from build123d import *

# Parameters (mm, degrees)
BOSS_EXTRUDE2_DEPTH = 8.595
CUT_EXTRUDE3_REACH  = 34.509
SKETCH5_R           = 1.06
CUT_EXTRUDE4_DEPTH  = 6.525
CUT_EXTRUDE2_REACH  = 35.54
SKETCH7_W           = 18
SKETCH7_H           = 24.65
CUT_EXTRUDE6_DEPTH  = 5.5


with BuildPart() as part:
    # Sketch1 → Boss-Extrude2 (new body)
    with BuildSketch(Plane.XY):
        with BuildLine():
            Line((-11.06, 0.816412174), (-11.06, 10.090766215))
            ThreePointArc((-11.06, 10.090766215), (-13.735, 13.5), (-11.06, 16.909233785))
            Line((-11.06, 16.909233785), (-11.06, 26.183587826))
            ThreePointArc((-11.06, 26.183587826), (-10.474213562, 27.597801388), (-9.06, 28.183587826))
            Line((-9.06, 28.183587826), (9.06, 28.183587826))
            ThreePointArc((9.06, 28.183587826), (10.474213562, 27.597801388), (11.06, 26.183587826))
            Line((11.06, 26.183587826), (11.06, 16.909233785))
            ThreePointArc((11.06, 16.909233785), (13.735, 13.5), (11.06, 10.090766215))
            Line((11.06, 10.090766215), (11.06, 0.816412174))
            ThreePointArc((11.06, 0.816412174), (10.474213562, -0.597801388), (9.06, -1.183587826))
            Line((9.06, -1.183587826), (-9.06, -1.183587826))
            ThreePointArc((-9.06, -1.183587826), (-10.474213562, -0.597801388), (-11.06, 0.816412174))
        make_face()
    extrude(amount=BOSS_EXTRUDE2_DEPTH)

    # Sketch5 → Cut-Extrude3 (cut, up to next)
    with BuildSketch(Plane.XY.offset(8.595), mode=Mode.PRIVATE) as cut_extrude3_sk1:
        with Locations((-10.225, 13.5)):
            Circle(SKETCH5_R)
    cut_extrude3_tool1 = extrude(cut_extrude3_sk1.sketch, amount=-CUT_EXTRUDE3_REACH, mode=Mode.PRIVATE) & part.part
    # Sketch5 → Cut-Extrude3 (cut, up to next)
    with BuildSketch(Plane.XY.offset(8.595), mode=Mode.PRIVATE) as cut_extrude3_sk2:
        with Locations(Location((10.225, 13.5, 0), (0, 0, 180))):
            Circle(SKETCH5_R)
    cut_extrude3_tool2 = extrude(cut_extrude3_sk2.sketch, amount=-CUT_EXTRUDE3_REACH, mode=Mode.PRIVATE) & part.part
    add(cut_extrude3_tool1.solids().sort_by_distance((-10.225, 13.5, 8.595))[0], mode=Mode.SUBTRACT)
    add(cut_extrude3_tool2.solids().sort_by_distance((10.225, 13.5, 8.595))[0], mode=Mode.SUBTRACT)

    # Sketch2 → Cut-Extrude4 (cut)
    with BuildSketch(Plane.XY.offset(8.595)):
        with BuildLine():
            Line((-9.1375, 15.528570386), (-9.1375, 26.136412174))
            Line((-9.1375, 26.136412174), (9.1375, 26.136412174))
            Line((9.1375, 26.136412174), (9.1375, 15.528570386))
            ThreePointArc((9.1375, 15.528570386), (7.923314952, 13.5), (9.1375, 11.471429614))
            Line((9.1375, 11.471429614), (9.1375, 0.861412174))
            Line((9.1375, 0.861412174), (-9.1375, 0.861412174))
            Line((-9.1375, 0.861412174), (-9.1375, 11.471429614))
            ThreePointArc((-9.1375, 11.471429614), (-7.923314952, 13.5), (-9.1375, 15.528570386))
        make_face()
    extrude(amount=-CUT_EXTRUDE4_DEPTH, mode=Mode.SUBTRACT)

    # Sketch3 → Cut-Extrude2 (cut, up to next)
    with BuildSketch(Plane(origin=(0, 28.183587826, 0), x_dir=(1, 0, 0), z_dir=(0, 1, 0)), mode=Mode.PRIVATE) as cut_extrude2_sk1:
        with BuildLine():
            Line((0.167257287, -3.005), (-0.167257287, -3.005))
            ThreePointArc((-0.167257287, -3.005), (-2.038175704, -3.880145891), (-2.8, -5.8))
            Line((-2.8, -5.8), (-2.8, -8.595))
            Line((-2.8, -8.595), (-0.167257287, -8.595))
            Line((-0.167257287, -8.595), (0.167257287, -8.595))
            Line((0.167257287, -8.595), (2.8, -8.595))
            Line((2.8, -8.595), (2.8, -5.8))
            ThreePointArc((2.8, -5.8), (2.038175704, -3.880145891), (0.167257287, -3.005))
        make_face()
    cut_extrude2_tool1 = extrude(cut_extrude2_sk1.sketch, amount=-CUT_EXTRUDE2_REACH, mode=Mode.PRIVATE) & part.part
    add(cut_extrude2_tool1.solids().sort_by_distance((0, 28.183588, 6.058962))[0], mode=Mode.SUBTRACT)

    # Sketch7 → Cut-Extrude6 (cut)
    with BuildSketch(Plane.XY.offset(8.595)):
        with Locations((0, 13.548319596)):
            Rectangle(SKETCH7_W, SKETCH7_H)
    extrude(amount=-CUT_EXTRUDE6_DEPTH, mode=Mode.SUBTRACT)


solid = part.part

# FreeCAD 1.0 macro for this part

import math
import FreeCAD as App
import Part
import Sketcher

V = App.Vector

doc = App.newDocument("Part")
body = doc.addObject("PartDesign::Body", "Body")

sketch1 = body.newObject("Sketcher::SketchObject", "Sketch")
sketch1.AttachmentSupport = (doc.getObject("XY_Plane"), [""])
sketch1.MapMode = "FlatFace"
sketch1.addGeometry([
    Part.LineSegment(V(-11.1, 10.1, 0), V(-11.1, 0.8, 0)),
    Part.ArcOfCircle(Part.Circle(V(-9.1, 0.8, 0), V(0, 0, 1), 2), math.radians(-180), math.radians(-90)),
    Part.LineSegment(V(-9.1, -1.2, 0), V(9.1, -1.2, 0)),
    Part.ArcOfCircle(Part.Circle(V(9.1, 0.8, 0), V(0, 0, 1), 2), math.radians(-90), math.radians(0)),
    Part.LineSegment(V(11.1, 0.8, 0), V(11.1, 10.1, 0)),
    Part.ArcOfCircle(Part.Circle(V(10.2, 13.5, 0), V(0, 0, 1), 3.5), math.radians(-76), math.radians(76)),
    Part.LineSegment(V(11.1, 16.9, 0), V(11.1, 26.2, 0)),
    Part.ArcOfCircle(Part.Circle(V(9.1, 26.2, 0), V(0, 0, 1), 2), math.radians(0), math.radians(90)),
    Part.LineSegment(V(9.1, 28.2, 0), V(-9.1, 28.2, 0)),
    Part.ArcOfCircle(Part.Circle(V(-9.1, 26.2, 0), V(0, 0, 1), 2), math.radians(90), math.radians(180)),
    Part.LineSegment(V(-11.1, 26.2, 0), V(-11.1, 16.9, 0)),
    Part.ArcOfCircle(Part.Circle(V(-10.2, 13.5, 0), V(0, 0, 1), 3.5), math.radians(104), math.radians(256)),
], False)
sketch1.addConstraint([
    Sketcher.Constraint("Tangent", 0, 2, 1, 1),
    Sketcher.Constraint("Tangent", 1, 2, 2, 1),
    Sketcher.Constraint("Tangent", 2, 2, 3, 1),
    Sketcher.Constraint("Tangent", 3, 2, 4, 1),
    Sketcher.Constraint("Coincident", 4, 2, 5, 1),
    Sketcher.Constraint("Coincident", 5, 2, 6, 1),
    Sketcher.Constraint("Tangent", 6, 2, 7, 1),
    Sketcher.Constraint("Tangent", 7, 2, 8, 1),
    Sketcher.Constraint("Tangent", 8, 2, 9, 1),
    Sketcher.Constraint("Tangent", 9, 2, 10, 1),
    Sketcher.Constraint("Coincident", 10, 2, 11, 1),
    Sketcher.Constraint("Coincident", 11, 2, 0, 1),
    Sketcher.Constraint("Vertical", 0),
    Sketcher.Constraint("Horizontal", 2),
    Sketcher.Constraint("Vertical", 4),
    Sketcher.Constraint("Vertical", 6),
    Sketcher.Constraint("Horizontal", 8),
    Sketcher.Constraint("Vertical", 10),
    Sketcher.Constraint("Equal", 1, 3),
    Sketcher.Constraint("Equal", 3, 7),
    Sketcher.Constraint("Equal", 7, 9),
    Sketcher.Constraint("Equal", 5, 11),
    Sketcher.Constraint("Symmetric", 5, 3, 11, 3, -2),
    Sketcher.Constraint("Horizontal", 5, 2, 10, 2),
    Sketcher.Constraint("Horizontal", 4, 2, 11, 2),
    Sketcher.Constraint("Vertical", 3, 3, 7, 3),
    Sketcher.Constraint("Equal", 4, 6),
    Sketcher.Constraint("Radius", 1, 2.0),
    Sketcher.Constraint("Radius", 5, 3.51),
    Sketcher.Constraint("DistanceX", 2, 1, 2, 2, 18.12),
    Sketcher.Constraint("DistanceY", -1, 1, 5, 3, 13.5),
    Sketcher.Constraint("DistanceX", 11, 3, 5, 3, 20.45),
    Sketcher.Constraint("DistanceY", 0, 2, 0, 1, 9.274354),
])
pad1 = body.newObject("PartDesign::Pad", "Pad")
pad1.Profile = sketch1
pad1.Length = 8.595

sketch2 = body.newObject("Sketcher::SketchObject", "Sketch001")
sketch2.AttachmentSupport = (doc.getObject("XY_Plane"), [""])
sketch2.MapMode = "FlatFace"
sketch2.AttachmentOffset = App.Placement(V(0, 0, 8.595), App.Rotation())
sketch2.addGeometry(Part.Circle(V(-10.2, 13.5, 0), V(0, 0, 1), 1.1), False)
sketch2.addConstraint([
    Sketcher.Constraint("Diameter", 0, 2.12),
    Sketcher.Constraint("DistanceY", -1, 1, 0, 3, 13.5),
    Sketcher.Constraint("DistanceX", 0, 3, -1, 1, 10.225),
])
pocket1 = body.newObject("PartDesign::Pocket", "Pocket")
pocket1.Profile = sketch2
pocket1.Type = "UpToFirst"

sketch3 = body.newObject("Sketcher::SketchObject", "Sketch002")
sketch3.AttachmentSupport = (doc.getObject("XY_Plane"), [""])
sketch3.MapMode = "FlatFace"
sketch3.AttachmentOffset = App.Placement(V(0, 0, 8.595), App.Rotation())
sketch3.addGeometry(Part.Circle(V(10.2, 13.5, 0), V(0, 0, 1), 1.1), False)
sketch3.addConstraint([
    Sketcher.Constraint("Diameter", 0, 2.12),
    Sketcher.Constraint("DistanceY", -1, 1, 0, 3, 13.5),
    Sketcher.Constraint("DistanceX", -1, 1, 0, 3, 10.225),
])
pocket2 = body.newObject("PartDesign::Pocket", "Pocket001")
pocket2.Profile = sketch3
pocket2.Type = "UpToFirst"

sketch4 = body.newObject("Sketcher::SketchObject", "Sketch003")
sketch4.AttachmentSupport = (doc.getObject("XY_Plane"), [""])
sketch4.MapMode = "FlatFace"
sketch4.AttachmentOffset = App.Placement(V(0, 0, 8.595), App.Rotation())
sketch4.addGeometry([
    Part.LineSegment(V(-9.1, 26.1, 0), V(-9.1, 15.5, 0)),
    Part.ArcOfCircle(Part.Circle(V(-10.2, 13.5, 0), V(0, 0, 1), 2.3), math.radians(-62), math.radians(62)),
    Part.LineSegment(V(-9.1, 11.5, 0), V(-9.1, 0.9, 0)),
    Part.LineSegment(V(-9.1, 0.9, 0), V(9.1, 0.9, 0)),
    Part.LineSegment(V(9.1, 0.9, 0), V(9.1, 11.5, 0)),
    Part.ArcOfCircle(Part.Circle(V(10.2, 13.5, 0), V(0, 0, 1), 2.3), math.radians(118), math.radians(242)),
    Part.LineSegment(V(9.1, 15.5, 0), V(9.1, 26.1, 0)),
    Part.LineSegment(V(9.1, 26.1, 0), V(-9.1, 26.1, 0)),
], False)
sketch4.addConstraint([
    Sketcher.Constraint("Coincident", 0, 2, 1, 2),
    Sketcher.Constraint("Coincident", 1, 1, 2, 1),
    Sketcher.Constraint("Coincident", 2, 2, 3, 1),
    Sketcher.Constraint("Coincident", 3, 2, 4, 1),
    Sketcher.Constraint("Coincident", 4, 2, 5, 2),
    Sketcher.Constraint("Coincident", 5, 1, 6, 1),
    Sketcher.Constraint("Coincident", 6, 2, 7, 1),
    Sketcher.Constraint("Coincident", 7, 2, 0, 1),
    Sketcher.Constraint("Vertical", 0),
    Sketcher.Constraint("Vertical", 2),
    Sketcher.Constraint("Horizontal", 3),
    Sketcher.Constraint("Vertical", 4),
    Sketcher.Constraint("Vertical", 6),
    Sketcher.Constraint("Horizontal", 7),
    Sketcher.Constraint("Equal", 1, 5),
    Sketcher.Constraint("Symmetric", 1, 3, 5, 3, -2),
    Sketcher.Constraint("Horizontal", 1, 1, 4, 2),
    Sketcher.Constraint("Horizontal", 0, 2, 5, 1),
    Sketcher.Constraint("Vertical", 0, 2, 1, 1),
    Sketcher.Constraint("DistanceY", -1, 1, 1, 3, 13.5),
    Sketcher.Constraint("DistanceX", 3, 1, 3, 2, 18.275),
    Sketcher.Constraint("DistanceX", 1, 3, 5, 3, 20.45),
    Sketcher.Constraint("Radius", 1, 2.301685),
    Sketcher.Constraint("DistanceY", 0, 2, 0, 1, 10.607842),
    Sketcher.Constraint("DistanceY", 2, 2, 2, 1, 10.610017),
])
pocket3 = body.newObject("PartDesign::Pocket", "Pocket002")
pocket3.Profile = sketch4
pocket3.Length = 6.525

sketch5 = body.newObject("Sketcher::SketchObject", "Sketch004")
sketch5.AttachmentSupport = (doc.getObject("XZ_Plane"), [""])
sketch5.MapMode = "FlatFace"
sketch5.AttachmentOffset = App.Placement(V(0, 0, -28.183588), App.Rotation())
sketch5.addGeometry([
    Part.LineSegment(V(0.17, 3, 0), V(-0.17, 3, 0)),
    Part.ArcOfCircle(Part.Circle(V(0, 5.8, 0), V(0, 0, 1), 2.8), math.radians(180), math.radians(267)),
    Part.LineSegment(V(-2.8, 5.8, 0), V(-2.8, 8.6, 0)),
    Part.LineSegment(V(-2.8, 8.6, 0), V(2.8, 8.6, 0)),
    Part.LineSegment(V(2.8, 8.6, 0), V(2.8, 5.8, 0)),
    Part.ArcOfCircle(Part.Circle(V(0, 5.8, 0), V(0, 0, 1), 2.8), math.radians(-87), math.radians(0)),
], False)
sketch5.addConstraint([
    Sketcher.Constraint("Coincident", 0, 2, 1, 2),
    Sketcher.Constraint("Tangent", 1, 1, 2, 1),
    Sketcher.Constraint("Coincident", 2, 2, 3, 1),
    Sketcher.Constraint("Coincident", 3, 2, 4, 1),
    Sketcher.Constraint("Tangent", 4, 2, 5, 2),
    Sketcher.Constraint("Coincident", 5, 1, 0, 1),
    Sketcher.Constraint("Horizontal", 0),
    Sketcher.Constraint("Vertical", 2),
    Sketcher.Constraint("Horizontal", 3),
    Sketcher.Constraint("Vertical", 4),
    Sketcher.Constraint("Coincident", 5, 3, 1, 3),
    Sketcher.Constraint("Equal", 1, 5),
    Sketcher.Constraint("PointOnObject", 1, 3, -2),
    Sketcher.Constraint("Radius", 1, 2.8),
    Sketcher.Constraint("DistanceY", -1, 1, 1, 3, 5.8),
    Sketcher.Constraint("DistanceY", 2, 1, 2, 2, 2.795),
    Sketcher.Constraint("DistanceY", 0, 2, 2, 2, 5.59),
])
pocket4 = body.newObject("PartDesign::Pocket", "Pocket003")
pocket4.Profile = sketch5
pocket4.Type = "UpToFirst"
pocket4.Reversed = True

sketch6 = body.newObject("Sketcher::SketchObject", "Sketch005")
sketch6.AttachmentSupport = (doc.getObject("XY_Plane"), [""])
sketch6.MapMode = "FlatFace"
sketch6.AttachmentOffset = App.Placement(V(0, 0, 8.595), App.Rotation())
sketch6.addGeometry([
    Part.LineSegment(V(-9, 26, 0), V(-9, 1, 0)),
    Part.LineSegment(V(-9, 1, 0), V(9, 1, 0)),
    Part.LineSegment(V(9, 1, 0), V(9, 26, 0)),
    Part.LineSegment(V(9, 26, 0), V(-9, 26, 0)),
], False)
sketch6.addConstraint([
    Sketcher.Constraint("Coincident", 0, 2, 1, 1),
    Sketcher.Constraint("Coincident", 1, 2, 2, 1),
    Sketcher.Constraint("Coincident", 2, 2, 3, 1),
    Sketcher.Constraint("Coincident", 3, 2, 0, 1),
    Sketcher.Constraint("Vertical", 0),
    Sketcher.Constraint("Horizontal", 1),
    Sketcher.Constraint("Vertical", 2),
    Sketcher.Constraint("Horizontal", 3),
    Sketcher.Constraint("DistanceX", 1, 1, 1, 2, 18.0),
    Sketcher.Constraint("DistanceX", 0, 2, -1, 1, 9.0),
    Sketcher.Constraint("DistanceY", 0, 2, 0, 1, 24.65),
    Sketcher.Constraint("DistanceY", -1, 1, 0, 2, 1.22332),
])
pocket5 = body.newObject("PartDesign::Pocket", "Pocket004")
pocket5.Profile = sketch6
pocket5.Length = 5.5

doc.recompute()
